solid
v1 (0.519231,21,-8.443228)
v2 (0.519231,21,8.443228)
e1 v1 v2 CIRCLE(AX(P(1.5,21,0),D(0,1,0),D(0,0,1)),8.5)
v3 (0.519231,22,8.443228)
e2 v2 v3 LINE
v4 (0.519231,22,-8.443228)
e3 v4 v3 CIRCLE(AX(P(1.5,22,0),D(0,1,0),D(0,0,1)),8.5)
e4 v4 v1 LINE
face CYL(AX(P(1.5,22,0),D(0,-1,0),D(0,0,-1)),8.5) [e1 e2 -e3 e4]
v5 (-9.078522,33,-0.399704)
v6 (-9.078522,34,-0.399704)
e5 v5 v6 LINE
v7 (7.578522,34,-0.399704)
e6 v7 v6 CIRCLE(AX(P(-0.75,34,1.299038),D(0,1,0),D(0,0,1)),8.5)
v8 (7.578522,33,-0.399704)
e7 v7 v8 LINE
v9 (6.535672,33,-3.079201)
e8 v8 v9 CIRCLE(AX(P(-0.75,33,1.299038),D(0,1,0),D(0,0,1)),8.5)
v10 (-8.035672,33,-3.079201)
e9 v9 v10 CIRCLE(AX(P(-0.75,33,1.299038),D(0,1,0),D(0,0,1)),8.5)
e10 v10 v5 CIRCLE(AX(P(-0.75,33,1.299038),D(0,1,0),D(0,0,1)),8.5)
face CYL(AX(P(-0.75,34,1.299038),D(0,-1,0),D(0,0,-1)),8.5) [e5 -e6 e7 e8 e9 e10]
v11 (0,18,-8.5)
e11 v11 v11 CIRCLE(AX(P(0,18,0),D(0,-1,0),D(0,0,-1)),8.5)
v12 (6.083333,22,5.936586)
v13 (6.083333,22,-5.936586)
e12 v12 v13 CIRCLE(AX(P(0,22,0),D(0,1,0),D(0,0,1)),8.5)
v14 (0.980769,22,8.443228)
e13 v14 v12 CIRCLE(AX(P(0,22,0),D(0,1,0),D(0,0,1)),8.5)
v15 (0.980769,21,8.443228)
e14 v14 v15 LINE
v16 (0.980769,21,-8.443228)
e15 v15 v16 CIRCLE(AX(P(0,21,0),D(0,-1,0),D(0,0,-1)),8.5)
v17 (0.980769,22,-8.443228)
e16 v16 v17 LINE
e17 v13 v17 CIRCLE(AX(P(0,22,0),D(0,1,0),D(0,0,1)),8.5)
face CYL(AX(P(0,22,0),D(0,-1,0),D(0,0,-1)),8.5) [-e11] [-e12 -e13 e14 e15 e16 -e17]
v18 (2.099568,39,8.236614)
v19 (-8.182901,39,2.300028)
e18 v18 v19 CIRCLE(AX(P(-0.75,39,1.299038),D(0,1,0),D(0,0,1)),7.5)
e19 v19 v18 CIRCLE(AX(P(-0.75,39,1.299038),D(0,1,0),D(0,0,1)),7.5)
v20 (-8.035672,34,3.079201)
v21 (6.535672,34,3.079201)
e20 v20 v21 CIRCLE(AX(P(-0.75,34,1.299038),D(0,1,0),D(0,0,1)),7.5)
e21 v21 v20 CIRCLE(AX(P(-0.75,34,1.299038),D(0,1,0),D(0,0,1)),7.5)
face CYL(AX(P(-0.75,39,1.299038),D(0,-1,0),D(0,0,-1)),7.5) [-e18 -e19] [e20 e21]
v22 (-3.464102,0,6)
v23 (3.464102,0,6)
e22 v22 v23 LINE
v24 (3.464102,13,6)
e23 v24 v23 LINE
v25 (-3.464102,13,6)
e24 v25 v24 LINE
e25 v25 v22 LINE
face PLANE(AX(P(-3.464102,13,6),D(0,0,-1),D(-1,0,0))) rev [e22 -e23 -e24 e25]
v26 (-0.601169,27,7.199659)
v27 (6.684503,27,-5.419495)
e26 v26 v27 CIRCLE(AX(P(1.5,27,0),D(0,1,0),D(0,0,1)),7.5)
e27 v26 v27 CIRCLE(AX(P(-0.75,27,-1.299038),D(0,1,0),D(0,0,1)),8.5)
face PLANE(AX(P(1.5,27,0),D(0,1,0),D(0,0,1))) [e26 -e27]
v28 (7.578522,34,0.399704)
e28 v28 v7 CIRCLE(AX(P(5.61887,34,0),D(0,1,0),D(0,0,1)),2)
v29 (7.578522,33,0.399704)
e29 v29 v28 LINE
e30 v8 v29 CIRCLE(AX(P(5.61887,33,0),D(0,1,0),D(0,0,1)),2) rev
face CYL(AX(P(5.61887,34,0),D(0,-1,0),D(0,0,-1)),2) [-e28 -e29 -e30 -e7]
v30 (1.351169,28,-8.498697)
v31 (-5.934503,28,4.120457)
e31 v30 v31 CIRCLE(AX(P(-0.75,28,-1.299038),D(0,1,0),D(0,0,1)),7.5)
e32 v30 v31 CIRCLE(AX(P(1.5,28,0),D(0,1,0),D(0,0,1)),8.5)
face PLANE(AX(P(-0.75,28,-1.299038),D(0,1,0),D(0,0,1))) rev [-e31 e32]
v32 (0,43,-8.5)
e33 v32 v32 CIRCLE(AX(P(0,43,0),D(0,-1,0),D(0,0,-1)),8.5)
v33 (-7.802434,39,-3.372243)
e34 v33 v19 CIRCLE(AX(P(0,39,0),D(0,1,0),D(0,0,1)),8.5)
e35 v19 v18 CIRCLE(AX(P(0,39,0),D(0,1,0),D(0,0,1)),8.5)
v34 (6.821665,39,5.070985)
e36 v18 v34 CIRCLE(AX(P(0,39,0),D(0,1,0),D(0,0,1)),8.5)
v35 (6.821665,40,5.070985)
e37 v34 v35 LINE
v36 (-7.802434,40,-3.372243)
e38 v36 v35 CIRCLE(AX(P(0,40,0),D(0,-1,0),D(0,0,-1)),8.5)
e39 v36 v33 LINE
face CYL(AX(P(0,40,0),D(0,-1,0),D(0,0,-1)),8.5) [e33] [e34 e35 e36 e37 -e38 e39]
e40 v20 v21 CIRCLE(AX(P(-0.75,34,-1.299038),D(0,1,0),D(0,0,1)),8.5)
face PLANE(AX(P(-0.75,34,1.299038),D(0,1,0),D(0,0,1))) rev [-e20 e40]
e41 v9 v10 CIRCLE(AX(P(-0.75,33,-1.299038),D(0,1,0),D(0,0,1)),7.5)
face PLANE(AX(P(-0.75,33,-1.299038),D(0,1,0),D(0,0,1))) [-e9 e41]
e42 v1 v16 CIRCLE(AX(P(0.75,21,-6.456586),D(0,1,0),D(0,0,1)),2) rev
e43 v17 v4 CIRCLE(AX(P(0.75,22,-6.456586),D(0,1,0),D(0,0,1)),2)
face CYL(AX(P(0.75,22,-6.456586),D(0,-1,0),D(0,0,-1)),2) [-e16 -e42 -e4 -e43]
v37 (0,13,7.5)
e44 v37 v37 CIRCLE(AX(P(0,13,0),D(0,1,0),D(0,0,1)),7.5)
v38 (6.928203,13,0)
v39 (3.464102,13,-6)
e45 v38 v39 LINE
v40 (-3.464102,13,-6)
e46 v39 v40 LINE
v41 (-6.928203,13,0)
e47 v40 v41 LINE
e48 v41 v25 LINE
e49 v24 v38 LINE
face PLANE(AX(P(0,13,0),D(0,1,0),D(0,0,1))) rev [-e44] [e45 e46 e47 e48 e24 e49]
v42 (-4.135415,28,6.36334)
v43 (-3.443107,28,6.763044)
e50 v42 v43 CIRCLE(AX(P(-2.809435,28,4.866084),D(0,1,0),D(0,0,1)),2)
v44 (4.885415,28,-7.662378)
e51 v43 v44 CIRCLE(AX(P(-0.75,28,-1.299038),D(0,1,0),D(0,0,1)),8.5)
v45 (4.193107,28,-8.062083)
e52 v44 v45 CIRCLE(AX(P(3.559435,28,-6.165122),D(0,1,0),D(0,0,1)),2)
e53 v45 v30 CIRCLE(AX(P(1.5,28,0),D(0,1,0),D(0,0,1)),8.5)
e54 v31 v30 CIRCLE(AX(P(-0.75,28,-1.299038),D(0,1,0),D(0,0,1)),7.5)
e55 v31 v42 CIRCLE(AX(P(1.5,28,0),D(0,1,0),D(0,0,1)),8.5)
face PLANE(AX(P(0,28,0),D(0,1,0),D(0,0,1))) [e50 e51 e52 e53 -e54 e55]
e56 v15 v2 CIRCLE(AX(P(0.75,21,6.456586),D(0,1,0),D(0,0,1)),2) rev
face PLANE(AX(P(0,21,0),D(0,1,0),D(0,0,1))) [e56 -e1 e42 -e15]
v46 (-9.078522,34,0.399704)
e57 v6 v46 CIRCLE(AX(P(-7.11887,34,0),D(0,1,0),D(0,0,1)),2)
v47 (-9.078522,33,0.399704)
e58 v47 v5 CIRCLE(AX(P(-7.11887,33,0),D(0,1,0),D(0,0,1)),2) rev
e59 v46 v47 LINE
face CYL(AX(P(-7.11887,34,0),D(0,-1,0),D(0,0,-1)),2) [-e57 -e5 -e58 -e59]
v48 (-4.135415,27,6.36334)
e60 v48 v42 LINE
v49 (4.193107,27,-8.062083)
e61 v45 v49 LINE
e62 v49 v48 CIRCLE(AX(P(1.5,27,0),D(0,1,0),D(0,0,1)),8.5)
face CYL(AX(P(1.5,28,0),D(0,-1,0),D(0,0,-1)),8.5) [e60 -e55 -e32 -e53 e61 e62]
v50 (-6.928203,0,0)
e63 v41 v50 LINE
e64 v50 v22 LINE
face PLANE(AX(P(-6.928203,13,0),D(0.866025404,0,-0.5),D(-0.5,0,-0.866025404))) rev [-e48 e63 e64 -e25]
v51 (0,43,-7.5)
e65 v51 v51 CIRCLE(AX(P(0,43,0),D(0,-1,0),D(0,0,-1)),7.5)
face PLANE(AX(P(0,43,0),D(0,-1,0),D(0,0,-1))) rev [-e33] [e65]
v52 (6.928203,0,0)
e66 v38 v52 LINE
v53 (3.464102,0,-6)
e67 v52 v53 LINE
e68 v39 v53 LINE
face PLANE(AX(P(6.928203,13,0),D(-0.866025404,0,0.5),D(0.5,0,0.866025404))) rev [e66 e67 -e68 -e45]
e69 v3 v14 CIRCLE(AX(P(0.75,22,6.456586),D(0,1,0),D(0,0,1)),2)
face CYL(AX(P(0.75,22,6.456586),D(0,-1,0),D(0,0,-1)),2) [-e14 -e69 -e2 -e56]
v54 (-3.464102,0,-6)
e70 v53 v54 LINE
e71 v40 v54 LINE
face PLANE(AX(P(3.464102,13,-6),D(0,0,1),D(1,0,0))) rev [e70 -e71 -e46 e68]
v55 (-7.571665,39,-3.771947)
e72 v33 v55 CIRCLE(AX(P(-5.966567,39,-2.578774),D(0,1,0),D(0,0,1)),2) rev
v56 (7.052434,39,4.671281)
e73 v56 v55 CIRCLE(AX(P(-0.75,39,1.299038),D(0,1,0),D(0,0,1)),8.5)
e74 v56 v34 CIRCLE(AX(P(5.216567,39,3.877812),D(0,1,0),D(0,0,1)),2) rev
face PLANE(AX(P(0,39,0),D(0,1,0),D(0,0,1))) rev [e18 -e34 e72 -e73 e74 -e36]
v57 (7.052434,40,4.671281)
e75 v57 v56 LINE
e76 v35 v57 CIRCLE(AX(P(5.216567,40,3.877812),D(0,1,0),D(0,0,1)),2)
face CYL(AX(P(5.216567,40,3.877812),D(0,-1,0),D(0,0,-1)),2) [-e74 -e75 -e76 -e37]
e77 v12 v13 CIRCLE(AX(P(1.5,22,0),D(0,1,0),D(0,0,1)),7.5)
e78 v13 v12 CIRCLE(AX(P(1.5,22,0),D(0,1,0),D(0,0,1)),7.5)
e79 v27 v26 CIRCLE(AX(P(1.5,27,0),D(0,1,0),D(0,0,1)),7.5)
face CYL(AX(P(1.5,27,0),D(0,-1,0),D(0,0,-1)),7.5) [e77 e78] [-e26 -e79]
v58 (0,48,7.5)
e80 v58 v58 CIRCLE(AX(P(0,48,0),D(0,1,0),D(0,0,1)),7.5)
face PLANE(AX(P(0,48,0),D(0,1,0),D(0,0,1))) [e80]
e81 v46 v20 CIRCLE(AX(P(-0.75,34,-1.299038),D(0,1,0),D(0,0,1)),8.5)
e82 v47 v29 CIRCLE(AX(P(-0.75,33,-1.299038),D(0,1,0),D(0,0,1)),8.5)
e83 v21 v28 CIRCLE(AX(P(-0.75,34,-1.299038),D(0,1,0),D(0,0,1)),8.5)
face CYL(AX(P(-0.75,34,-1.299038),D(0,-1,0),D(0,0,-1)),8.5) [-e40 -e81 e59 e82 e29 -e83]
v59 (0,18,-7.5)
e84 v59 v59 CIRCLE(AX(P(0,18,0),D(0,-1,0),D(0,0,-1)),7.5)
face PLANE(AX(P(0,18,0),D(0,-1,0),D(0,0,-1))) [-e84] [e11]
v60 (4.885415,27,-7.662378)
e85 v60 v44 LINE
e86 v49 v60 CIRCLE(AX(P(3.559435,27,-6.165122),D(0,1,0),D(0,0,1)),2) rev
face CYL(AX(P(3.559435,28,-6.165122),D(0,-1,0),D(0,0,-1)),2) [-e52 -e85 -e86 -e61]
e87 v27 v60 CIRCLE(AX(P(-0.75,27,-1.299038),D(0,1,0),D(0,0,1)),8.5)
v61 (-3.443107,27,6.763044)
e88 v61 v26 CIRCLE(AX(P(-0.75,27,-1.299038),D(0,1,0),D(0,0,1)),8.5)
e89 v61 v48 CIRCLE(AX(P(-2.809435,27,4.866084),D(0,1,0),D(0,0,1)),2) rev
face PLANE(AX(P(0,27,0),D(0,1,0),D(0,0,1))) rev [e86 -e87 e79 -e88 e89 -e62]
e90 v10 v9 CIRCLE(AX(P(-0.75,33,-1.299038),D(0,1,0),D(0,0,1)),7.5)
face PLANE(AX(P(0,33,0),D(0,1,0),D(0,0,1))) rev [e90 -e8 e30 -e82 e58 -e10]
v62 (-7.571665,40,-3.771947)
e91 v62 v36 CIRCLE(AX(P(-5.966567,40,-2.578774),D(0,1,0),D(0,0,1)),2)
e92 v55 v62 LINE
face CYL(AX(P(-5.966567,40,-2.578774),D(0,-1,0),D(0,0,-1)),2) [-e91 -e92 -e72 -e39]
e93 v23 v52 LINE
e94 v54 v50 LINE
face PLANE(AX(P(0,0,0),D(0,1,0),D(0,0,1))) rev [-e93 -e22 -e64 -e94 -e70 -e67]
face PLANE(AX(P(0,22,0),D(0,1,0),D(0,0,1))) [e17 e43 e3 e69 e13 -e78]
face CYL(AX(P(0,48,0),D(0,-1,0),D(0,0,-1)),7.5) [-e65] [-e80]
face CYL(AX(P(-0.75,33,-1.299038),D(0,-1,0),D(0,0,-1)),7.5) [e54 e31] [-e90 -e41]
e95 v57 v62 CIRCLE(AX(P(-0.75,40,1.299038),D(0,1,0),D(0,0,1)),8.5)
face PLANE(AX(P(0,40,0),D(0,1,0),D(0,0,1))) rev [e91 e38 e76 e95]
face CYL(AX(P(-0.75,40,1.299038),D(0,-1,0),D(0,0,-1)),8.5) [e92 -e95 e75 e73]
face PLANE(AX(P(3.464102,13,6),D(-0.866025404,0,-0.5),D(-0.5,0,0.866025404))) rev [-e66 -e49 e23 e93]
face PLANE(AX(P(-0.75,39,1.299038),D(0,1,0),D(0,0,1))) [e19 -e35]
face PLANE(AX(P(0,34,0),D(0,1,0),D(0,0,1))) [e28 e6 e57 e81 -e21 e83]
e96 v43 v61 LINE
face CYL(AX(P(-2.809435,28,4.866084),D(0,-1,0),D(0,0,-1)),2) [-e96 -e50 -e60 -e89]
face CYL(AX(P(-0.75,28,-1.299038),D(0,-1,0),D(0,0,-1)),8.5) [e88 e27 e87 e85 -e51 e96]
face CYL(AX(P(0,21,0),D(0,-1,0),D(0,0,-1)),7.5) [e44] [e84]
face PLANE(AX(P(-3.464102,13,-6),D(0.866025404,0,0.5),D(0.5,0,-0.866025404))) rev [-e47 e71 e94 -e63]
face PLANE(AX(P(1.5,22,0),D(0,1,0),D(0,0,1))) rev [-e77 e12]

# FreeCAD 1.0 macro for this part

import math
import FreeCAD as App
import Part
import Sketcher
Q = App.Units.Quantity


def edges_at(feature, points):
    """Names of the edges that pass closest to the given points."""
    edges = feature.Shape.Edges
    near = lambda p: min(range(len(edges)), key=lambda i: edges[i].distToShape(Part.Vertex(*p))[0])
    return sorted({f"Edge{near(p) + 1}" for p in points})


def add_polygon(sketch, points):
    """Adds a closed chain of lines whose ends are joined by coincident constraints."""
    first, n = sketch.GeometryCount, len(points)
    for a, b in zip(points, points[1:] + points[:1]):
        sketch.addGeometry(Part.LineSegment(App.Vector(*a, 0), App.Vector(*b, 0)), False)
    for i in range(n):
        sketch.addConstraint(Sketcher.Constraint("Coincident", first + i, 2, first + (i + 1) % n, 1))

doc = App.newDocument("Part")
body = doc.addObject("PartDesign::Body", "Body")

sketch1 = body.newObject("Sketcher::SketchObject", "Sketch")
sketch1.AttachmentSupport = (doc.getObject("XZ_Plane"), [""])
sketch1.MapMode = "FlatFace"
add_polygon(sketch1, [(-3.464102, -6), (-6.928203, 0), (-3.464102, 6), (3.464102, 6), (6.928203, 0), (3.464102, -6)])
sketch1.addConstraint([
    Sketcher.Constraint("Horizontal", 2),
    Sketcher.Constraint("Horizontal", 5),
    Sketcher.Constraint("Symmetric", 0, 2, 3, 2, -1, 1),
    Sketcher.Constraint("Symmetric", 1, 2, 4, 2, -1, 1),
    Sketcher.Constraint("PointOnObject", 0, 2, -1),
    Sketcher.Constraint("Parallel", 0, 3),
    Sketcher.Constraint("Vertical", 2, 2, 4, 2),
    Sketcher.Constraint("Angle", 0, Q("120 deg")),
    Sketcher.Constraint("DistanceY", -1, 1, 1, 2, Q("6 mm")),
    Sketcher.Constraint("DistanceX", 1, 2, -1, 1, Q("3.464102 mm")),
])
pad1 = body.newObject("PartDesign::Pad", "Pad")
pad1.Profile = sketch1
pad1.Length = 13
pad1.Reversed = True

sketch2 = body.newObject("Sketcher::SketchObject", "Sketch001")
sketch2.AttachmentSupport = (doc.getObject("XZ_Plane"), [""])
sketch2.MapMode = "FlatFace"
sketch2.AttachmentOffset = App.Placement(App.Vector(0, 0, -13), App.Rotation())
sketch2.addGeometry(Part.Circle(App.Vector(0, 0, 0), App.Vector(0, 0, 1), 7.5), False)
sketch2.addConstraint([
    Sketcher.Constraint("Coincident", 0, 3, -1, 1),
    Sketcher.Constraint("Diameter", 0, Q("15 mm")),
])
pad2 = body.newObject("PartDesign::Pad", "Pad001")
pad2.Profile = sketch2
pad2.Length = 8
pad2.Reversed = True

sketch3 = body.newObject("Sketcher::SketchObject", "Sketch002")
sketch3.AttachmentSupport = (doc.getObject("XZ_Plane"), [""])
sketch3.MapMode = "FlatFace"
sketch3.AttachmentOffset = App.Placement(App.Vector(0, 0, -21), App.Rotation())
sketch3.addGeometry([
    Part.ArcOfCircle(Part.Circle(App.Vector(0, 0, 0), App.Vector(0, 0, 1), 8.5), math.radians(0), math.radians(84.937907)),
    Part.ArcOfCircle(Part.Circle(App.Vector(0, 0, 0), App.Vector(0, 0, 1), 8.5), math.radians(-84.937907), math.radians(0)),
    Part.ArcOfCircle(Part.Circle(App.Vector(1.5, 0, 0), App.Vector(0, 0, 1), 8.5), math.radians(95.062093), math.radians(264.937907)),
], False)
sketch3.addConstraint([
    Sketcher.Constraint("Tangent", 0, 1, 1, 2),
    Sketcher.Constraint("Coincident", 1, 1, 2, 2),
    Sketcher.Constraint("Coincident", 2, 1, 0, 2),
    Sketcher.Constraint("Coincident", 0, 3, -1, 1),
    Sketcher.Constraint("Equal", 0, 1),
    Sketcher.Constraint("Equal", 1, 2),
    Sketcher.Constraint("PointOnObject", 2, 3, -1),
    Sketcher.Constraint("PointOnObject", 0, 1, -1),
    Sketcher.Constraint("Radius", 0, Q("8.5 mm")),
    Sketcher.Constraint("DistanceX", 2, 3, 0, 1, Q("7 mm")),
])
pad3 = body.newObject("PartDesign::Pad", "Pad002")
pad3.Profile = sketch3
pad3.Length = 1
pad3.Reversed = True

sketch4 = body.newObject("Sketcher::SketchObject", "Sketch003")
sketch4.AttachmentSupport = (doc.getObject("XZ_Plane"), [""])
sketch4.MapMode = "FlatFace"
sketch4.AttachmentOffset = App.Placement(App.Vector(0, 0, -22), App.Rotation())
sketch4.addGeometry(Part.Circle(App.Vector(1.5, 0, 0), App.Vector(0, 0, 1), 7.5), False)
sketch4.addConstraint([
    Sketcher.Constraint("PointOnObject", 0, 3, -1),
    Sketcher.Constraint("Diameter", 0, Q("15 mm")),
    Sketcher.Constraint("DistanceX", -1, 1, 0, 3, Q("1.5 mm")),
])
pad4 = body.newObject("PartDesign::Pad", "Pad003")
pad4.Profile = sketch4
pad4.Length = 5
pad4.Reversed = True

sketch5 = body.newObject("Sketcher::SketchObject", "Sketch004")
sketch5.AttachmentSupport = (doc.getObject("XZ_Plane"), [""])
sketch5.MapMode = "FlatFace"
sketch5.AttachmentOffset = App.Placement(App.Vector(0, 0, -27), App.Rotation())
sketch5.addGeometry([
    Part.ArcOfCircle(Part.Circle(App.Vector(-0.75, -1.299038, 0), App.Vector(0, 0, 1), 8.5), math.radians(-51.20915), math.radians(0)),
    Part.ArcOfCircle(Part.Circle(App.Vector(1.5, 0, 0), App.Vector(0, 0, 1), 8.5), math.radians(128.79085), math.radians(291.20915)),
    Part.ArcOfCircle(Part.Circle(App.Vector(-0.75, -1.299038, 0), App.Vector(0, 0, 1), 8.5), math.radians(0), math.radians(111.20915)),
], False)
sketch5.addConstraint([
    Sketcher.Constraint("Coincident", 0, 1, 1, 2),
    Sketcher.Constraint("Coincident", 1, 1, 2, 2),
    Sketcher.Constraint("Tangent", 2, 1, 0, 2),
    Sketcher.Constraint("Equal", 0, 1),
    Sketcher.Constraint("Equal", 1, 2),
    Sketcher.Constraint("PointOnObject", 1, 3, -1),
    Sketcher.Constraint("Horizontal", 0, 3, 2, 1),
    Sketcher.Constraint("Radius", 0, Q("8.5 mm")),
    Sketcher.Constraint("DistanceX", -1, 1, 1, 3, Q("1.5 mm")),
    Sketcher.Constraint("DistanceX", 0, 3, -1, 1, Q("0.75 mm")),
    Sketcher.Constraint("DistanceY", 0, 3, -1, 1, Q("1.299038 mm")),
])
pad5 = body.newObject("PartDesign::Pad", "Pad004")
pad5.Profile = sketch5
pad5.Length = 1
pad5.Reversed = True

sketch6 = body.newObject("Sketcher::SketchObject", "Sketch005")
sketch6.AttachmentSupport = (doc.getObject("XZ_Plane"), [""])
sketch6.MapMode = "FlatFace"
sketch6.AttachmentOffset = App.Placement(App.Vector(0, 0, -28), App.Rotation())
sketch6.addGeometry(Part.Circle(App.Vector(-0.75, -1.299038, 0), App.Vector(0, 0, 1), 7.5), False)
sketch6.addConstraint([
    Sketcher.Constraint("Diameter", 0, Q("15 mm")),
    Sketcher.Constraint("DistanceX", 0, 3, -1, 1, Q("0.75 mm")),
    Sketcher.Constraint("DistanceY", 0, 3, -1, 1, Q("1.299038 mm")),
])
pad6 = body.newObject("PartDesign::Pad", "Pad005")
pad6.Profile = sketch6
pad6.Length = 5
pad6.Reversed = True

sketch7 = body.newObject("Sketcher::SketchObject", "Sketch006")
sketch7.AttachmentSupport = (doc.getObject("XZ_Plane"), [""])
sketch7.MapMode = "FlatFace"
sketch7.AttachmentOffset = App.Placement(App.Vector(0, 0, -33), App.Rotation())
sketch7.addGeometry([
    Part.ArcOfCircle(Part.Circle(App.Vector(-0.75, 1.299038, 0), App.Vector(0, 0, 1), 8.5), math.radians(-171.20915), math.radians(-8.79085)),
    Part.ArcOfCircle(Part.Circle(App.Vector(-0.75, -1.299038, 0), App.Vector(0, 0, 1), 8.5), math.radians(8.79085), math.radians(171.20915)),
], False)
sketch7.addConstraint([
    Sketcher.Constraint("Coincident", 0, 1, 1, 2),
    Sketcher.Constraint("Coincident", 1, 1, 0, 2),
    Sketcher.Constraint("Equal", 0, 1),
    Sketcher.Constraint("Symmetric", 0, 3, 1, 3, -1),
    Sketcher.Constraint("Radius", 0, Q("8.5 mm")),
    Sketcher.Constraint("DistanceX", 0, 3, -1, 1, Q("0.75 mm")),
    Sketcher.Constraint("DistanceY", -1, 1, 0, 3, Q("1.299038 mm")),
])
pad7 = body.newObject("PartDesign::Pad", "Pad006")
pad7.Profile = sketch7
pad7.Length = 1
pad7.Reversed = True

sketch8 = body.newObject("Sketcher::SketchObject", "Sketch007")
sketch8.AttachmentSupport = (doc.getObject("XZ_Plane"), [""])
sketch8.MapMode = "FlatFace"
sketch8.AttachmentOffset = App.Placement(App.Vector(0, 0, -34), App.Rotation())
sketch8.addGeometry(Part.Circle(App.Vector(-0.75, 1.299038, 0), App.Vector(0, 0, 1), 7.5), False)
sketch8.addConstraint([
    Sketcher.Constraint("Diameter", 0, Q("15 mm")),
    Sketcher.Constraint("DistanceX", 0, 3, -1, 1, Q("0.75 mm")),
    Sketcher.Constraint("DistanceY", -1, 1, 0, 3, Q("1.299038 mm")),
])
pad8 = body.newObject("PartDesign::Pad", "Pad007")
pad8.Profile = sketch8
pad8.Length = 5
pad8.Reversed = True

sketch9 = body.newObject("Sketcher::SketchObject", "Sketch008")
sketch9.AttachmentSupport = (doc.getObject("XZ_Plane"), [""])
sketch9.MapMode = "FlatFace"
sketch9.AttachmentOffset = App.Placement(App.Vector(0, 0, -39), App.Rotation())
sketch9.addGeometry([
    Part.ArcOfCircle(Part.Circle(App.Vector(-0.75, 1.299038, 0), App.Vector(0, 0, 1), 8.5), math.radians(0), math.radians(24.937907)),
    Part.ArcOfCircle(Part.Circle(App.Vector(-0.75, 1.299038, 0), App.Vector(0, 0, 1), 8.5), math.radians(-144.937907), math.radians(0)),
    Part.ArcOfCircle(Part.Circle(App.Vector(0, 0, 0), App.Vector(0, 0, 1), 8.5), math.radians(35.062093), math.radians(204.937907)),
], False)
sketch9.addConstraint([
    Sketcher.Constraint("Tangent", 0, 1, 1, 2),
    Sketcher.Constraint("Coincident", 1, 1, 2, 2),
    Sketcher.Constraint("Coincident", 2, 1, 0, 2),
    Sketcher.Constraint("Coincident", 2, 3, -1, 1),
    Sketcher.Constraint("Equal", 0, 1),
    Sketcher.Constraint("Equal", 1, 2),
    Sketcher.Constraint("Horizontal", 1, 3, 0, 1),
    Sketcher.Constraint("Radius", 0, Q("8.5 mm")),
    Sketcher.Constraint("DistanceX", 0, 3, -1, 1, Q("0.75 mm")),
    Sketcher.Constraint("DistanceY", -1, 1, 0, 3, Q("1.299038 mm")),
])
pad9 = body.newObject("PartDesign::Pad", "Pad008")
pad9.Profile = sketch9
pad9.Length = 1
pad9.Reversed = True

sketch10 = body.newObject("Sketcher::SketchObject", "Sketch009")
sketch10.AttachmentSupport = (doc.getObject("XZ_Plane"), [""])
sketch10.MapMode = "FlatFace"
sketch10.AttachmentOffset = App.Placement(App.Vector(0, 0, -40), App.Rotation())
sketch10.addGeometry(Part.Circle(App.Vector(0, 0, 0), App.Vector(0, 0, 1), 7.5), False)
sketch10.addConstraint([
    Sketcher.Constraint("Coincident", 0, 3, -1, 1),
    Sketcher.Constraint("Diameter", 0, Q("15 mm")),
])
pad10 = body.newObject("PartDesign::Pad", "Pad009")
pad10.Profile = sketch10
pad10.Length = 8
pad10.Reversed = True
doc.recompute()

fillet = body.newObject("PartDesign::Fillet", "Fillet")
fillet.Base = (pad10, edges_at(pad10, [
    (0.75, 21.5, -8.467),
    (0.75, 21.5, 8.467),
    (-3.825, 27.5, 6.625),
    (4.575, 27.5, -7.924),
    (7.65, 33.5, 0),
    (-9.15, 33.5, 0),
    (-7.708, 39.5, -3.584),
    (6.958, 39.5, 4.883),
]))
fillet.Radius = 2

sketch11 = body.newObject("Sketcher::SketchObject", "Sketch010")
sketch11.AttachmentSupport = (doc.getObject("XZ_Plane"), [""])
sketch11.MapMode = "FlatFace"
sketch11.AttachmentOffset = App.Placement(App.Vector(0, 0, -18), App.Rotation())
sketch11.addGeometry(Part.Circle(App.Vector(0, 0, 0), App.Vector(0, 0, 1), 8.5), False)
sketch11.addConstraint([
    Sketcher.Constraint("Coincident", 0, 3, -1, 1),
    Sketcher.Constraint("Diameter", 0, Q("17 mm")),
])
pad11 = body.newObject("PartDesign::Pad", "Pad010")
pad11.Profile = sketch11
pad11.Length = 3
pad11.Reversed = True

sketch12 = body.newObject("Sketcher::SketchObject", "Sketch011")
sketch12.AttachmentSupport = (doc.getObject("XZ_Plane"), [""])
sketch12.MapMode = "FlatFace"
sketch12.AttachmentOffset = App.Placement(App.Vector(0, 0, -40), App.Rotation())
sketch12.addGeometry(Part.Circle(App.Vector(0, 0, 0), App.Vector(0, 0, 1), 8.5), False)
sketch12.addConstraint([
    Sketcher.Constraint("Coincident", 0, 3, -1, 1),
    Sketcher.Constraint("Diameter", 0, Q("17 mm")),
])
pad12 = body.newObject("PartDesign::Pad", "Pad011")
pad12.Profile = sketch12
pad12.Length = 3
pad12.Reversed = True

doc.recompute()
